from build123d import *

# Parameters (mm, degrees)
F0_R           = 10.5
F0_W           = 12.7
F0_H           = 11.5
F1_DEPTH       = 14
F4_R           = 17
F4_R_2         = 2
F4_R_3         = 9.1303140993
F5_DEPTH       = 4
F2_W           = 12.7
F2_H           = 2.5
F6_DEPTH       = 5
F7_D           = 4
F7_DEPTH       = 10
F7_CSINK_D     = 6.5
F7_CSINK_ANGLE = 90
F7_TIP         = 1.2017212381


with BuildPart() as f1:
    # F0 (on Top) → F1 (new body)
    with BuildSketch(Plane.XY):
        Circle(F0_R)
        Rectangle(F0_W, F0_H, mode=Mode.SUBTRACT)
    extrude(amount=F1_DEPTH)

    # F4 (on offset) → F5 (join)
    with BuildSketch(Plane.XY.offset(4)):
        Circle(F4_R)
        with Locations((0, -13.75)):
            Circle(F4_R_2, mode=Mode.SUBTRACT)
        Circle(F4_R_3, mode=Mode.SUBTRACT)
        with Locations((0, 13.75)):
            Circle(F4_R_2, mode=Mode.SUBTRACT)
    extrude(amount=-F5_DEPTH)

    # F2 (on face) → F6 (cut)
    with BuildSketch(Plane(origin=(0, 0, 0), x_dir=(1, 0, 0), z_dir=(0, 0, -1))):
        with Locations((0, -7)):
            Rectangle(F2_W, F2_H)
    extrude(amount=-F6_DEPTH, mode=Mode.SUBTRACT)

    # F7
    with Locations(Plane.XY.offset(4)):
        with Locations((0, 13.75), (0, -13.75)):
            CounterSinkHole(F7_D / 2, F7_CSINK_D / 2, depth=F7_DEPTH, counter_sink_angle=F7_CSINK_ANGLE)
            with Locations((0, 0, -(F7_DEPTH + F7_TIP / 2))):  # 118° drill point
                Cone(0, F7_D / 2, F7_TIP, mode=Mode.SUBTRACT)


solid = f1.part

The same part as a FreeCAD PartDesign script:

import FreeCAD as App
import Part
import Sketcher
Q = App.Units.Quantity


def add_polygon(sketch, points):
    """Adds a closed chain of lines whose ends are joined by coincident constraints."""
    first, n = sketch.GeometryCount, len(points)
    for a, b in zip(points, points[1:] + points[:1]):
        sketch.addGeometry(Part.LineSegment(App.Vector(*a, 0), App.Vector(*b, 0)), False)
    for i in range(n):
        sketch.addConstraint(Sketcher.Constraint("Coincident", first + i, 2, first + (i + 1) % n, 1))

doc = App.newDocument("Part")
body = doc.addObject("PartDesign::Body", "Body")

# Sketch on XY plane
sketch1 = body.newObject("Sketcher::SketchObject", "Sketch")
sketch1.AttachmentSupport = (doc.getObject("XY_Plane"), [""])
sketch1.MapMode = "FlatFace"
sketch1.addGeometry(Part.Circle(App.Vector(0, 0, 0), App.Vector(0, 0, 1), 10), False)  # 0
add_polygon(sketch1, [(6, -6), (-6, -6), (-6, 6), (6, 6)])  # lines 1-4
sketch1.addConstraint([
    Sketcher.Constraint("Horizontal", 1),
    Sketcher.Constraint("Vertical", 2),
    Sketcher.Constraint("Horizontal", 3),
    Sketcher.Constraint("Vertical", 4),
    Sketcher.Constraint("Coincident", 0, 3, -1, 1),
    Sketcher.Constraint("Symmetric", 1, 2, 3, 2, -1, 1),
    Sketcher.Constraint("Diameter", 0, Q("21 mm")),
    Sketcher.Constraint("DistanceX", 1, 2, 1, 1, Q("12.7 mm")),
    Sketcher.Constraint("DistanceY", 2, 1, 2, 2, Q("11.5 mm")),
])
pad1 = body.newObject("PartDesign::Pad", "Pad")
pad1.Profile = sketch1
pad1.Length = 14

# Sketch on XY plane
sketch2 = body.newObject("Sketcher::SketchObject", "Sketch001")
sketch2.AttachmentSupport = (doc.getObject("XY_Plane"), [""])
sketch2.MapMode = "FlatFace"
sketch2.AttachmentOffset = App.Placement(App.Vector(0, 0, 4), App.Rotation())
sketch2.addGeometry([
    Part.Circle(App.Vector(0, 0, 0), App.Vector(0, 0, 1), 17),
    Part.Circle(App.Vector(0, -13.8, 0), App.Vector(0, 0, 1), 2),
    Part.Circle(App.Vector(0, 0, 0), App.Vector(0, 0, 1), 9.1),
    Part.Circle(App.Vector(0, 13.8, 0), App.Vector(0, 0, 1), 2),
], False)
sketch2.addConstraint([
    Sketcher.Constraint("Coincident", 0, 3, -1, 1),
    Sketcher.Constraint("Coincident", 2, 3, -1, 1),
    Sketcher.Constraint("Equal", 1, 3),
    Sketcher.Constraint("Symmetric", 1, 3, 3, 3, -1, 1),
    Sketcher.Constraint("PointOnObject", 1, 3, -2),
    Sketcher.Constraint("Diameter", 0, Q("34 mm")),
    Sketcher.Constraint("Diameter", 1, Q("4 mm")),
    Sketcher.Constraint("DistanceY", 1, 3, 3, 3, Q("27.5 mm")),
    Sketcher.Constraint("Diameter", 2, Q("18.260628 mm")),
])
pad2 = body.newObject("PartDesign::Pad", "Pad001")
pad2.Profile = sketch2
pad2.Length = 4
pad2.Reversed = True

# Sketch on XY plane
sketch3 = body.newObject("Sketcher::SketchObject", "Sketch002")
sketch3.AttachmentSupport = (doc.getObject("XY_Plane"), [""])
sketch3.MapMode = "FlatFace"
add_polygon(sketch3, [(-6.3, 5.8), (-6.3, 8.2), (6.3, 8.2), (6.3, 5.8)])  # lines 0-3
sketch3.addConstraint([
    Sketcher.Constraint("Vertical", 0),
    Sketcher.Constraint("Horizontal", 1),
    Sketcher.Constraint("Vertical", 2),
    Sketcher.Constraint("Horizontal", 3),
    Sketcher.Constraint("DistanceX", 1, 1, 1, 2, Q("12.7 mm")),
    Sketcher.Constraint("DistanceY", 0, 1, 0, 2, Q("2.5 mm")),
    Sketcher.Constraint("DistanceX", 0, 2, -1, 1, Q("6.35 mm")),
    Sketcher.Constraint("DistanceY", -1, 1, 0, 2, Q("8.25 mm")),
])
pocket1 = body.newObject("PartDesign::Pocket", "Pocket")
pocket1.Profile = sketch3
pocket1.Length = 5
pocket1.Reversed = True

# Sketch on XY plane
sketch4 = body.newObject("Sketcher::SketchObject", "Sketch003")
sketch4.AttachmentSupport = (doc.getObject("XY_Plane"), [""])
sketch4.MapMode = "FlatFace"
sketch4.AttachmentOffset = App.Placement(App.Vector(0, 0, 4), App.Rotation())
sketch4.addGeometry([
    Part.Circle(App.Vector(0, 13.8, 0), App.Vector(0, 0, 1), 2),
    Part.Circle(App.Vector(0, -13.8, 0), App.Vector(0, 0, 1), 2),
], False)
sketch4.addConstraint([
    Sketcher.Constraint("Equal", 0, 1),
    Sketcher.Constraint("Symmetric", 0, 3, 1, 3, -1, 1),
    Sketcher.Constraint("PointOnObject", 0, 3, -2),
    Sketcher.Constraint("Diameter", 0, Q("4 mm")),
    Sketcher.Constraint("DistanceY", 1, 3, 0, 3, Q("27.5 mm")),
])
doc.recompute()
hole = body.newObject("PartDesign::Hole", "Hole")
hole.Profile = sketch4
hole.ThreadType = "None"
hole.Diameter = 4
hole.DepthType = "Dimension"
hole.Depth = 10
hole.DrillPoint = "Angled"
hole.DrillPointAngle = 118
hole.HoleCutType = "Countersink"
hole.HoleCutDiameter = 6.5
hole.HoleCutCountersinkAngle = 90

doc.recompute()
